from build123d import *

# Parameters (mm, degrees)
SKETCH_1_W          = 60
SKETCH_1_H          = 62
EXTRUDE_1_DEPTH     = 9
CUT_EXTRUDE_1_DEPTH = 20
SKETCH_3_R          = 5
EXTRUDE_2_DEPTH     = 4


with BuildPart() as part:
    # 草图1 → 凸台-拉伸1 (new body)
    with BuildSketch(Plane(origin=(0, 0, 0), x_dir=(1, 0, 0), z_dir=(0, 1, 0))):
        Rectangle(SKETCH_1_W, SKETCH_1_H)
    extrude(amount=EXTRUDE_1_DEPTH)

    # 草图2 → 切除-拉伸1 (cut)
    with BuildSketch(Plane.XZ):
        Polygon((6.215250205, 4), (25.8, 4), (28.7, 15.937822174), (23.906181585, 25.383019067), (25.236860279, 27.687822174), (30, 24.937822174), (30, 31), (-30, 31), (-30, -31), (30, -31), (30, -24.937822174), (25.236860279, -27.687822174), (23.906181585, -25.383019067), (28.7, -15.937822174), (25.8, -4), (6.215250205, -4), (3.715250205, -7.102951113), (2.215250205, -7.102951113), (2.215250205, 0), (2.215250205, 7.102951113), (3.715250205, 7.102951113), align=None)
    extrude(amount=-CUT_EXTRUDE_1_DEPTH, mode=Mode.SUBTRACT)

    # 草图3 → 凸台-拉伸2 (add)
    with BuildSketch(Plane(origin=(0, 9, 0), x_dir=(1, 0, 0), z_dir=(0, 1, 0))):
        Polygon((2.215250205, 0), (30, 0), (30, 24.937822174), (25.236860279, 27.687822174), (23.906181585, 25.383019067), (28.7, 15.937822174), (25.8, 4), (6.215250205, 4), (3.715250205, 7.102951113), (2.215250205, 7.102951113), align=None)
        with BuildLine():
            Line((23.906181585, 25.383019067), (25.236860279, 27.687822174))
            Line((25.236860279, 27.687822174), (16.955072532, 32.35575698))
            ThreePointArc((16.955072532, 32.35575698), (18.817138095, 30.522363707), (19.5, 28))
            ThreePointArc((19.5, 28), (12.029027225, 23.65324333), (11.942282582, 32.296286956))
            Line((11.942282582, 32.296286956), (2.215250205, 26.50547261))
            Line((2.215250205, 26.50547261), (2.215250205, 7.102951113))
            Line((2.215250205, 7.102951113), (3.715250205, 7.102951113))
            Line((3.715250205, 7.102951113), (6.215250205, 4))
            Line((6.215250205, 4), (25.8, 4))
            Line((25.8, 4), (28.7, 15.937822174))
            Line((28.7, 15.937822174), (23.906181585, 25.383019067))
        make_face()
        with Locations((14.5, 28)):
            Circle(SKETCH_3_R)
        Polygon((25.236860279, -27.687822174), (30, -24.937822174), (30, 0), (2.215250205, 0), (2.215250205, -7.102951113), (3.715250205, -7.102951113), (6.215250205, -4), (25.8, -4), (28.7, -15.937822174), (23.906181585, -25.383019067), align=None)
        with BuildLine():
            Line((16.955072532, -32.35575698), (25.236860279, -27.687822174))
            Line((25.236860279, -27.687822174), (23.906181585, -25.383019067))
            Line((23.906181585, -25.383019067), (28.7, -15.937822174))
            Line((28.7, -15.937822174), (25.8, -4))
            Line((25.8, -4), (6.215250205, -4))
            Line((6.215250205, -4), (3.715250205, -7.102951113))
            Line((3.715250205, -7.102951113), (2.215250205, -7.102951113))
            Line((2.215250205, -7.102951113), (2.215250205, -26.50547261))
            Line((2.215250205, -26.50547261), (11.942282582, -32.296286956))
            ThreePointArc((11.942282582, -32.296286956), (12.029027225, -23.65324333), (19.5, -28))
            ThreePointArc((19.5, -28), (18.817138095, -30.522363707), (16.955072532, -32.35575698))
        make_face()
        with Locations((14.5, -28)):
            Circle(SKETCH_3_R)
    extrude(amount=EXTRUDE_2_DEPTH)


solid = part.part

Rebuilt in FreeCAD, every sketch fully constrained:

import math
import FreeCAD as App
import Part
import Sketcher

V = App.Vector
Q = App.Units.Quantity

doc = App.newDocument("Part")
body = doc.addObject("PartDesign::Body", "Body")

sketch1 = doc.addObject("Sketcher::SketchObject", "Sketch")
body.addObject(sketch1)
sketch1.AttachmentSupport = (doc.XZ_Plane, [""])
sketch1.MapMode = "FlatFace"
sketch1.addGeometry([
    Part.LineSegment(V(-30, -31, 0), V(-30, 31, 0)),
    Part.LineSegment(V(-30, 31, 0), V(30, 31, 0)),
    Part.LineSegment(V(30, 31, 0), V(30, -31, 0)),
    Part.LineSegment(V(30, -31, 0), V(-30, -31, 0)),
], False)
sketch1.addConstraint([
    Sketcher.Constraint("Coincident", 0, 2, 1, 1),
    Sketcher.Constraint("Coincident", 1, 2, 2, 1),
    Sketcher.Constraint("Coincident", 2, 2, 3, 1),
    Sketcher.Constraint("Coincident", 3, 2, 0, 1),
    Sketcher.Constraint("Vertical", 0),
    Sketcher.Constraint("Horizontal", 1),
    Sketcher.Constraint("Vertical", 2),
    Sketcher.Constraint("Horizontal", 3),
    Sketcher.Constraint("Symmetric", 0, 2, 2, 2, -1, 1),
    Sketcher.Constraint("DistanceX", 1, 1, 1, 2, 60.0),
    Sketcher.Constraint("DistanceY", 0, 1, 0, 2, 62.0),
])
pad1 = doc.addObject("PartDesign::Pad", "Pad")
body.addObject(pad1)
pad1.Profile = sketch1
pad1.Length = 9
pad1.Reversed = True

sketch2 = doc.addObject("Sketcher::SketchObject", "Sketch001")
body.addObject(sketch2)
sketch2.AttachmentSupport = (doc.XZ_Plane, [""])
sketch2.MapMode = "FlatFace"
sketch2.addGeometry([
    Part.LineSegment(V(6.2, 4, 0), V(25.8, 4, 0)),
    Part.LineSegment(V(25.8, 4, 0), V(28.7, 15.9, 0)),
    Part.LineSegment(V(28.7, 15.9, 0), V(23.9, 25.4, 0)),
    Part.LineSegment(V(23.9, 25.4, 0), V(25.2, 27.7, 0)),
    Part.LineSegment(V(25.2, 27.7, 0), V(30, 24.9, 0)),
    Part.LineSegment(V(30, 24.9, 0), V(30, 31, 0)),
    Part.LineSegment(V(30, 31, 0), V(-30, 31, 0)),
    Part.LineSegment(V(-30, 31, 0), V(-30, -31, 0)),
    Part.LineSegment(V(-30, -31, 0), V(30, -31, 0)),
    Part.LineSegment(V(30, -31, 0), V(30, -24.9, 0)),
    Part.LineSegment(V(30, -24.9, 0), V(25.2, -27.7, 0)),
    Part.LineSegment(V(25.2, -27.7, 0), V(23.9, -25.4, 0)),
    Part.LineSegment(V(23.9, -25.4, 0), V(28.7, -15.9, 0)),
    Part.LineSegment(V(28.7, -15.9, 0), V(25.8, -4, 0)),
    Part.LineSegment(V(25.8, -4, 0), V(6.2, -4, 0)),
    Part.LineSegment(V(6.2, -4, 0), V(3.7, -7.1, 0)),
    Part.LineSegment(V(3.7, -7.1, 0), V(2.2, -7.1, 0)),
    Part.LineSegment(V(2.2, -7.1, 0), V(2.2, 7.1, 0)),
    Part.LineSegment(V(2.2, 7.1, 0), V(3.7, 7.1, 0)),
    Part.LineSegment(V(3.7, 7.1, 0), V(6.2, 4, 0)),
], False)
sketch2.addConstraint([
    Sketcher.Constraint("Coincident", 0, 2, 1, 1),
    Sketcher.Constraint("Coincident", 1, 2, 2, 1),
    Sketcher.Constraint("Coincident", 2, 2, 3, 1),
    Sketcher.Constraint("Coincident", 3, 2, 4, 1),
    Sketcher.Constraint("Coincident", 4, 2, 5, 1),
    Sketcher.Constraint("Coincident", 5, 2, 6, 1),
    Sketcher.Constraint("Coincident", 6, 2, 7, 1),
    Sketcher.Constraint("Coincident", 7, 2, 8, 1),
    Sketcher.Constraint("Coincident", 8, 2, 9, 1),
    Sketcher.Constraint("Coincident", 9, 2, 10, 1),
    Sketcher.Constraint("Coincident", 10, 2, 11, 1),
    Sketcher.Constraint("Coincident", 11, 2, 12, 1),
    Sketcher.Constraint("Coincident", 12, 2, 13, 1),
    Sketcher.Constraint("Coincident", 13, 2, 14, 1),
    Sketcher.Constraint("Coincident", 14, 2, 15, 1),
    Sketcher.Constraint("Coincident", 15, 2, 16, 1),
    Sketcher.Constraint("Coincident", 16, 2, 17, 1),
    Sketcher.Constraint("Coincident", 17, 2, 18, 1),
    Sketcher.Constraint("Coincident", 18, 2, 19, 1),
    Sketcher.Constraint("Coincident", 19, 2, 0, 1),
    Sketcher.Constraint("Horizontal", 0),
    Sketcher.Constraint("Vertical", 5),
    Sketcher.Constraint("Horizontal", 6),
    Sketcher.Constraint("Vertical", 7),
    Sketcher.Constraint("Horizontal", 8),
    Sketcher.Constraint("Vertical", 9),
    Sketcher.Constraint("Horizontal", 14),
    Sketcher.Constraint("Horizontal", 16),
    Sketcher.Constraint("Vertical", 17),
    Sketcher.Constraint("Horizontal", 18),
    Sketcher.Constraint("Symmetric", 5, 2, 7, 2, -1, 1),
    Sketcher.Constraint("Symmetric", 4, 2, 9, 2, -1),
    Sketcher.Constraint("Symmetric", 3, 2, 10, 2, -1),
    Sketcher.Constraint("Symmetric", 2, 2, 11, 2, -1),
    Sketcher.Constraint("Symmetric", 1, 2, 12, 2, -1),
    Sketcher.Constraint("Symmetric", 0, 2, 13, 2, -1),
    Sketcher.Constraint("Symmetric", 15, 2, 18, 2, -1),
    Sketcher.Constraint("Perpendicular", 3, 4),
    Sketcher.Constraint("Vertical", 14, 2, 19, 2),
    Sketcher.Constraint("DistanceX", 6, 2, 6, 1, 60.0),
    Sketcher.Constraint("DistanceY", 7, 2, 7, 1, 62.0),
    Sketcher.Constraint("Angle", 3, Q("60 deg")),
    Sketcher.Constraint("DistanceX", 16, 2, 16, 1, 1.5),
    Sketcher.Constraint("DistanceY", -1, 1, 0, 2, 4.0),
    Sketcher.Constraint("DistanceY", 1, 2, 4, 2, 9.0),
    Sketcher.Constraint("DistanceX", 16, 2, 14, 2, 4.0),
    Sketcher.Constraint("Distance", 4, 5.5),
    Sketcher.Constraint("DistanceX", -1, 1, 0, 2, 25.8),
    Sketcher.Constraint("DistanceX", -1, 1, 1, 2, 28.7),
    Sketcher.Constraint("DistanceX", 0, 1, 0, 2, 19.58475),
    Sketcher.Constraint("Distance", 15, 3.984759),
    Sketcher.Constraint("DistanceY", 5, 1, 5, 2, 6.062178),
    Sketcher.Constraint("DistanceX", -1, 1, 2, 2, 23.906182),
])
pocket1 = doc.addObject("PartDesign::Pocket", "Pocket")
body.addObject(pocket1)
pocket1.Profile = sketch2
pocket1.Length = 20

sketch3 = doc.addObject("Sketcher::SketchObject", "Sketch002")
body.addObject(sketch3)
sketch3.AttachmentSupport = (doc.XZ_Plane, [""])
sketch3.MapMode = "FlatFace"
sketch3.AttachmentOffset = App.Placement(V(0, 0, -9), App.Rotation())
sketch3.addGeometry([
    Part.LineSegment(V(30, -25, 0), V(25, -28, 0)),
    Part.LineSegment(V(25, -28, 0), V(17, -32, 0)),
    Part.ArcOfCircle(Part.Circle(V(14, -28, 0), V(0, 0, 1), 5), math.radians(-121), math.radians(-61)),
    Part.LineSegment(V(12, -32, 0), V(2, -27, 0)),
    Part.LineSegment(V(2, -27, 0), V(2, 27, 0)),
    Part.LineSegment(V(2, 27, 0), V(12, 32, 0)),
    Part.ArcOfCircle(Part.Circle(V(14, 28, 0), V(0, 0, 1), 5), math.radians(61), math.radians(121)),
    Part.LineSegment(V(17, 32, 0), V(25, 28, 0)),
    Part.LineSegment(V(25, 28, 0), V(30, 25, 0)),
    Part.LineSegment(V(30, 25, 0), V(30, -25, 0)),
], False)
sketch3.addConstraint([
    Sketcher.Constraint("Coincident", 0, 2, 1, 1),
    Sketcher.Constraint("Tangent", 1, 2, 2, 2),
    Sketcher.Constraint("Tangent", 2, 1, 3, 1),
    Sketcher.Constraint("Coincident", 3, 2, 4, 1),
    Sketcher.Constraint("Coincident", 4, 2, 5, 1),
    Sketcher.Constraint("Tangent", 5, 2, 6, 2),
    Sketcher.Constraint("Tangent", 6, 1, 7, 1),
    Sketcher.Constraint("Coincident", 7, 2, 8, 1),
    Sketcher.Constraint("Coincident", 8, 2, 9, 1),
    Sketcher.Constraint("Coincident", 9, 2, 0, 1),
    Sketcher.Constraint("Vertical", 4),
    Sketcher.Constraint("Vertical", 9),
    Sketcher.Constraint("Equal", 2, 6),
    Sketcher.Constraint("Symmetric", 2, 3, 6, 3, -1),
    Sketcher.Constraint("Symmetric", 0, 2, 7, 2, -1),
    Sketcher.Constraint("Vertical", 2, 1, 5, 2),
    Sketcher.Constraint("Equal", 0, 8),
    Sketcher.Constraint("Radius", 2, 5.0),
    Sketcher.Constraint("Angle", 0, Q("-150 deg")),
    Sketcher.Constraint("DistanceY", 2, 3, -1, 1, 28.0),
    Sketcher.Constraint("DistanceX", -1, 1, 8, 2, 30.0),
    Sketcher.Constraint("Distance", 0, 5.5),
    Sketcher.Constraint("DistanceX", -1, 1, 2, 3, 14.5),
    Sketcher.Constraint("DistanceY", 4, 1, 4, 2, 53.010945),
    Sketcher.Constraint("DistanceY", 9, 2, 9, 1, 49.875644),
    Sketcher.Constraint("DistanceX", -1, 1, 3, 2, 2.21525),
])
pad2 = doc.addObject("PartDesign::Pad", "Pad001")
body.addObject(pad2)
pad2.Profile = sketch3
pad2.Length = 4
pad2.Reversed = True

doc.recompute()
